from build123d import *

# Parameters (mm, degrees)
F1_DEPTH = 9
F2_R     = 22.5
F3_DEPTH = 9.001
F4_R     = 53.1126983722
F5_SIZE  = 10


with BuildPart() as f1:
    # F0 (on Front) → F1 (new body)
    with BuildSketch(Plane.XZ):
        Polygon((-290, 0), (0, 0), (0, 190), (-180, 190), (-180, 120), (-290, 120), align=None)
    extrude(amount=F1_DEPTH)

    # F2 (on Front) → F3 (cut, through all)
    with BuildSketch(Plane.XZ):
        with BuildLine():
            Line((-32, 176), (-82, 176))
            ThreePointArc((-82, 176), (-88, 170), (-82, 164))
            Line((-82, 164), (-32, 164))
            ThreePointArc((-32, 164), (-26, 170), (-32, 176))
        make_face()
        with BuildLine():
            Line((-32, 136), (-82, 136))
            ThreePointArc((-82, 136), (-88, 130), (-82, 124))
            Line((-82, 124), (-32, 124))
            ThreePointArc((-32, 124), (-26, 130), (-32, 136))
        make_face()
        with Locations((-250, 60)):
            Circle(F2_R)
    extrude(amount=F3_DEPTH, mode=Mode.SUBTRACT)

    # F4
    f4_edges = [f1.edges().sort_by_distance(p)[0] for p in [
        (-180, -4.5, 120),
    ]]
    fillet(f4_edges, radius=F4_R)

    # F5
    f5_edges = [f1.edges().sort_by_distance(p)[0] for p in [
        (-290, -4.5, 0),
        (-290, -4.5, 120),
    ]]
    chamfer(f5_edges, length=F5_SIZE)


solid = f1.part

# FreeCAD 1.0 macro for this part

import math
import FreeCAD as App
import Part
import Sketcher

V = App.Vector


def edges_at(feature, points):
    """Names of the edges that pass closest to the given points."""
    edges = feature.Shape.Edges
    near = lambda p: min(range(len(edges)), key=lambda i: edges[i].distToShape(Part.Vertex(*p))[0])
    return sorted({f"Edge{near(p) + 1}" for p in points})


def add_polygon(sketch, points):
    """Adds a closed chain of lines whose ends are joined by coincident constraints."""
    first, n = sketch.GeometryCount, len(points)
    for a, b in zip(points, points[1:] + points[:1]):
        sketch.addGeometry(Part.LineSegment(App.Vector(*a, 0), App.Vector(*b, 0)), False)
    for i in range(n):
        sketch.addConstraint(Sketcher.Constraint("Coincident", first + i, 2, first + (i + 1) % n, 1))

doc = App.newDocument("Part")
params = doc.addObject("Spreadsheet::Sheet", "Params")
for row, (alias, value) in enumerate([
    ("sketch1_width", "290 mm"),
    ("sketch1_width2", "180 mm"),
    ("sketch1_height", "190 mm"),
    ("sketch1_height2", "70 mm"),
    ("pad1_length", "9 mm"),
    ("sketch2_diameter", "45 mm"),
    ("sketch2_radius", "6 mm"),
    ("sketch2_width", "50 mm"),
    ("fillet_radius", "53.112698 mm"),
    ("chamfer_size", "10 mm"),
], start=1):
    params.set(f"A{row}", alias)
    params.set(f"B{row}", "=" + value)
    params.setAlias(f"B{row}", alias)

body = doc.addObject("PartDesign::Body", "Body")

# Sketch on XZ plane
sketch1 = body.newObject("Sketcher::SketchObject", "Sketch")
sketch1.AttachmentSupport = (doc.getObject("XZ_Plane"), [""])
sketch1.MapMode = "FlatFace"
add_polygon(sketch1, [(-290, 0), (0, 0), (0, 190), (-180, 190), (-180, 120), (-290, 120)])  # lines 0-5
sketch1.addConstraint([
    Sketcher.Constraint("Horizontal", 0),
    Sketcher.Constraint("Vertical", 1),
    Sketcher.Constraint("Horizontal", 2),
    Sketcher.Constraint("Vertical", 3),
    Sketcher.Constraint("Horizontal", 4),
    Sketcher.Constraint("Vertical", 5),
    Sketcher.Constraint("Coincident", 0, 2, -1, 1),
    Sketcher.Constraint("DistanceX", 0, 1, 0, 2, 290.0),
    Sketcher.Constraint("DistanceX", 2, 2, 2, 1, 180.0),
    Sketcher.Constraint("DistanceY", 1, 1, 1, 2, 190.0),
    Sketcher.Constraint("DistanceY", 3, 2, 3, 1, 70.0),
])
sketch1.setExpression("Constraints[13]", "Params.sketch1_width")
sketch1.setExpression("Constraints[14]", "Params.sketch1_width2")
sketch1.setExpression("Constraints[15]", "Params.sketch1_height")
sketch1.setExpression("Constraints[16]", "Params.sketch1_height2")
pad1 = body.newObject("PartDesign::Pad", "Pad")
pad1.Profile = sketch1
pad1.setExpression("Length", "Params.pad1_length")

# Sketch on XZ plane
sketch2 = body.newObject("Sketcher::SketchObject", "Sketch001")
sketch2.AttachmentSupport = (doc.getObject("XZ_Plane"), [""])
sketch2.MapMode = "FlatFace"
sketch2.addGeometry([
    Part.LineSegment(V(-32, 176, 0), V(-82, 176, 0)),  # 0
    Part.ArcOfCircle(Part.Circle(V(-82, 170, 0), V(0, 0, 1), 6), math.radians(90), math.radians(270)),  # 1
    Part.LineSegment(V(-82, 164, 0), V(-32, 164, 0)),  # 2
    Part.ArcOfCircle(Part.Circle(V(-32, 170, 0), V(0, 0, 1), 6), math.radians(-90), math.radians(90)),  # 3
    Part.LineSegment(V(-32, 136, 0), V(-82, 136, 0)),  # 4
    Part.ArcOfCircle(Part.Circle(V(-82, 130, 0), V(0, 0, 1), 6), math.radians(90), math.radians(270)),  # 5
    Part.LineSegment(V(-82, 124, 0), V(-32, 124, 0)),  # 6
    Part.ArcOfCircle(Part.Circle(V(-32, 130, 0), V(0, 0, 1), 6), math.radians(-90), math.radians(90)),  # 7
    Part.Circle(V(-250, 60, 0), V(0, 0, 1), 22.5),  # 8
], False)
sketch2.addConstraint([
    Sketcher.Constraint("Tangent", 0, 2, 1, 1),
    Sketcher.Constraint("Tangent", 1, 2, 2, 1),
    Sketcher.Constraint("Tangent", 2, 2, 3, 1),
    Sketcher.Constraint("Tangent", 3, 2, 0, 1),
    Sketcher.Constraint("Tangent", 4, 2, 5, 1),
    Sketcher.Constraint("Tangent", 5, 2, 6, 1),
    Sketcher.Constraint("Tangent", 6, 2, 7, 1),
    Sketcher.Constraint("Tangent", 7, 2, 4, 1),
    Sketcher.Constraint("Horizontal", 0),
    Sketcher.Constraint("Horizontal", 2),
    Sketcher.Constraint("Horizontal", 4),
    Sketcher.Constraint("Horizontal", 6),
    Sketcher.Constraint("Equal", 3, 5),
    Sketcher.Constraint("Vertical", 1, 3, 5, 3),
    Sketcher.Constraint("Vertical", 3, 3, 7, 3),
    Sketcher.Constraint("Diameter", 8, 45.0),
    Sketcher.Constraint("Radius", 1, 6.0),
    Sketcher.Constraint("DistanceX", 0, 2, 0, 1, 50.0),
    Sketcher.Constraint("DistanceX", 1, 3, -1, 1, 82.0),
    Sketcher.Constraint("DistanceY", -1, 1, 1, 3, 170.0),
    Sketcher.Constraint("DistanceY", -1, 1, 5, 3, 130.0),
    Sketcher.Constraint("DistanceX", 8, 3, -1, 1, 250.0),
    Sketcher.Constraint("DistanceY", -1, 1, 8, 3, 60.0),
])
sketch2.setExpression("Constraints[15]", "Params.sketch2_diameter")
sketch2.setExpression("Constraints[16]", "Params.sketch2_radius")
sketch2.setExpression("Constraints[17]", "Params.sketch2_width")
pocket1 = body.newObject("PartDesign::Pocket", "Pocket")
pocket1.Profile = sketch2
pocket1.Type = "ThroughAll"
pocket1.Reversed = True
doc.recompute()

fillet = body.newObject("PartDesign::Fillet", "Fillet")
fillet.Base = (pocket1, edges_at(pocket1, [(-180, -4.5, 120)]))
fillet.setExpression("Radius", "Params.fillet_radius")
doc.recompute()

chamfer = body.newObject("PartDesign::Chamfer", "Chamfer")
chamfer.Base = (fillet, edges_at(fillet, [(-290, -4.5, 0), (-290, -4.5, 120)]))
chamfer.setExpression("Size", "Params.chamfer_size")

doc.recompute()
